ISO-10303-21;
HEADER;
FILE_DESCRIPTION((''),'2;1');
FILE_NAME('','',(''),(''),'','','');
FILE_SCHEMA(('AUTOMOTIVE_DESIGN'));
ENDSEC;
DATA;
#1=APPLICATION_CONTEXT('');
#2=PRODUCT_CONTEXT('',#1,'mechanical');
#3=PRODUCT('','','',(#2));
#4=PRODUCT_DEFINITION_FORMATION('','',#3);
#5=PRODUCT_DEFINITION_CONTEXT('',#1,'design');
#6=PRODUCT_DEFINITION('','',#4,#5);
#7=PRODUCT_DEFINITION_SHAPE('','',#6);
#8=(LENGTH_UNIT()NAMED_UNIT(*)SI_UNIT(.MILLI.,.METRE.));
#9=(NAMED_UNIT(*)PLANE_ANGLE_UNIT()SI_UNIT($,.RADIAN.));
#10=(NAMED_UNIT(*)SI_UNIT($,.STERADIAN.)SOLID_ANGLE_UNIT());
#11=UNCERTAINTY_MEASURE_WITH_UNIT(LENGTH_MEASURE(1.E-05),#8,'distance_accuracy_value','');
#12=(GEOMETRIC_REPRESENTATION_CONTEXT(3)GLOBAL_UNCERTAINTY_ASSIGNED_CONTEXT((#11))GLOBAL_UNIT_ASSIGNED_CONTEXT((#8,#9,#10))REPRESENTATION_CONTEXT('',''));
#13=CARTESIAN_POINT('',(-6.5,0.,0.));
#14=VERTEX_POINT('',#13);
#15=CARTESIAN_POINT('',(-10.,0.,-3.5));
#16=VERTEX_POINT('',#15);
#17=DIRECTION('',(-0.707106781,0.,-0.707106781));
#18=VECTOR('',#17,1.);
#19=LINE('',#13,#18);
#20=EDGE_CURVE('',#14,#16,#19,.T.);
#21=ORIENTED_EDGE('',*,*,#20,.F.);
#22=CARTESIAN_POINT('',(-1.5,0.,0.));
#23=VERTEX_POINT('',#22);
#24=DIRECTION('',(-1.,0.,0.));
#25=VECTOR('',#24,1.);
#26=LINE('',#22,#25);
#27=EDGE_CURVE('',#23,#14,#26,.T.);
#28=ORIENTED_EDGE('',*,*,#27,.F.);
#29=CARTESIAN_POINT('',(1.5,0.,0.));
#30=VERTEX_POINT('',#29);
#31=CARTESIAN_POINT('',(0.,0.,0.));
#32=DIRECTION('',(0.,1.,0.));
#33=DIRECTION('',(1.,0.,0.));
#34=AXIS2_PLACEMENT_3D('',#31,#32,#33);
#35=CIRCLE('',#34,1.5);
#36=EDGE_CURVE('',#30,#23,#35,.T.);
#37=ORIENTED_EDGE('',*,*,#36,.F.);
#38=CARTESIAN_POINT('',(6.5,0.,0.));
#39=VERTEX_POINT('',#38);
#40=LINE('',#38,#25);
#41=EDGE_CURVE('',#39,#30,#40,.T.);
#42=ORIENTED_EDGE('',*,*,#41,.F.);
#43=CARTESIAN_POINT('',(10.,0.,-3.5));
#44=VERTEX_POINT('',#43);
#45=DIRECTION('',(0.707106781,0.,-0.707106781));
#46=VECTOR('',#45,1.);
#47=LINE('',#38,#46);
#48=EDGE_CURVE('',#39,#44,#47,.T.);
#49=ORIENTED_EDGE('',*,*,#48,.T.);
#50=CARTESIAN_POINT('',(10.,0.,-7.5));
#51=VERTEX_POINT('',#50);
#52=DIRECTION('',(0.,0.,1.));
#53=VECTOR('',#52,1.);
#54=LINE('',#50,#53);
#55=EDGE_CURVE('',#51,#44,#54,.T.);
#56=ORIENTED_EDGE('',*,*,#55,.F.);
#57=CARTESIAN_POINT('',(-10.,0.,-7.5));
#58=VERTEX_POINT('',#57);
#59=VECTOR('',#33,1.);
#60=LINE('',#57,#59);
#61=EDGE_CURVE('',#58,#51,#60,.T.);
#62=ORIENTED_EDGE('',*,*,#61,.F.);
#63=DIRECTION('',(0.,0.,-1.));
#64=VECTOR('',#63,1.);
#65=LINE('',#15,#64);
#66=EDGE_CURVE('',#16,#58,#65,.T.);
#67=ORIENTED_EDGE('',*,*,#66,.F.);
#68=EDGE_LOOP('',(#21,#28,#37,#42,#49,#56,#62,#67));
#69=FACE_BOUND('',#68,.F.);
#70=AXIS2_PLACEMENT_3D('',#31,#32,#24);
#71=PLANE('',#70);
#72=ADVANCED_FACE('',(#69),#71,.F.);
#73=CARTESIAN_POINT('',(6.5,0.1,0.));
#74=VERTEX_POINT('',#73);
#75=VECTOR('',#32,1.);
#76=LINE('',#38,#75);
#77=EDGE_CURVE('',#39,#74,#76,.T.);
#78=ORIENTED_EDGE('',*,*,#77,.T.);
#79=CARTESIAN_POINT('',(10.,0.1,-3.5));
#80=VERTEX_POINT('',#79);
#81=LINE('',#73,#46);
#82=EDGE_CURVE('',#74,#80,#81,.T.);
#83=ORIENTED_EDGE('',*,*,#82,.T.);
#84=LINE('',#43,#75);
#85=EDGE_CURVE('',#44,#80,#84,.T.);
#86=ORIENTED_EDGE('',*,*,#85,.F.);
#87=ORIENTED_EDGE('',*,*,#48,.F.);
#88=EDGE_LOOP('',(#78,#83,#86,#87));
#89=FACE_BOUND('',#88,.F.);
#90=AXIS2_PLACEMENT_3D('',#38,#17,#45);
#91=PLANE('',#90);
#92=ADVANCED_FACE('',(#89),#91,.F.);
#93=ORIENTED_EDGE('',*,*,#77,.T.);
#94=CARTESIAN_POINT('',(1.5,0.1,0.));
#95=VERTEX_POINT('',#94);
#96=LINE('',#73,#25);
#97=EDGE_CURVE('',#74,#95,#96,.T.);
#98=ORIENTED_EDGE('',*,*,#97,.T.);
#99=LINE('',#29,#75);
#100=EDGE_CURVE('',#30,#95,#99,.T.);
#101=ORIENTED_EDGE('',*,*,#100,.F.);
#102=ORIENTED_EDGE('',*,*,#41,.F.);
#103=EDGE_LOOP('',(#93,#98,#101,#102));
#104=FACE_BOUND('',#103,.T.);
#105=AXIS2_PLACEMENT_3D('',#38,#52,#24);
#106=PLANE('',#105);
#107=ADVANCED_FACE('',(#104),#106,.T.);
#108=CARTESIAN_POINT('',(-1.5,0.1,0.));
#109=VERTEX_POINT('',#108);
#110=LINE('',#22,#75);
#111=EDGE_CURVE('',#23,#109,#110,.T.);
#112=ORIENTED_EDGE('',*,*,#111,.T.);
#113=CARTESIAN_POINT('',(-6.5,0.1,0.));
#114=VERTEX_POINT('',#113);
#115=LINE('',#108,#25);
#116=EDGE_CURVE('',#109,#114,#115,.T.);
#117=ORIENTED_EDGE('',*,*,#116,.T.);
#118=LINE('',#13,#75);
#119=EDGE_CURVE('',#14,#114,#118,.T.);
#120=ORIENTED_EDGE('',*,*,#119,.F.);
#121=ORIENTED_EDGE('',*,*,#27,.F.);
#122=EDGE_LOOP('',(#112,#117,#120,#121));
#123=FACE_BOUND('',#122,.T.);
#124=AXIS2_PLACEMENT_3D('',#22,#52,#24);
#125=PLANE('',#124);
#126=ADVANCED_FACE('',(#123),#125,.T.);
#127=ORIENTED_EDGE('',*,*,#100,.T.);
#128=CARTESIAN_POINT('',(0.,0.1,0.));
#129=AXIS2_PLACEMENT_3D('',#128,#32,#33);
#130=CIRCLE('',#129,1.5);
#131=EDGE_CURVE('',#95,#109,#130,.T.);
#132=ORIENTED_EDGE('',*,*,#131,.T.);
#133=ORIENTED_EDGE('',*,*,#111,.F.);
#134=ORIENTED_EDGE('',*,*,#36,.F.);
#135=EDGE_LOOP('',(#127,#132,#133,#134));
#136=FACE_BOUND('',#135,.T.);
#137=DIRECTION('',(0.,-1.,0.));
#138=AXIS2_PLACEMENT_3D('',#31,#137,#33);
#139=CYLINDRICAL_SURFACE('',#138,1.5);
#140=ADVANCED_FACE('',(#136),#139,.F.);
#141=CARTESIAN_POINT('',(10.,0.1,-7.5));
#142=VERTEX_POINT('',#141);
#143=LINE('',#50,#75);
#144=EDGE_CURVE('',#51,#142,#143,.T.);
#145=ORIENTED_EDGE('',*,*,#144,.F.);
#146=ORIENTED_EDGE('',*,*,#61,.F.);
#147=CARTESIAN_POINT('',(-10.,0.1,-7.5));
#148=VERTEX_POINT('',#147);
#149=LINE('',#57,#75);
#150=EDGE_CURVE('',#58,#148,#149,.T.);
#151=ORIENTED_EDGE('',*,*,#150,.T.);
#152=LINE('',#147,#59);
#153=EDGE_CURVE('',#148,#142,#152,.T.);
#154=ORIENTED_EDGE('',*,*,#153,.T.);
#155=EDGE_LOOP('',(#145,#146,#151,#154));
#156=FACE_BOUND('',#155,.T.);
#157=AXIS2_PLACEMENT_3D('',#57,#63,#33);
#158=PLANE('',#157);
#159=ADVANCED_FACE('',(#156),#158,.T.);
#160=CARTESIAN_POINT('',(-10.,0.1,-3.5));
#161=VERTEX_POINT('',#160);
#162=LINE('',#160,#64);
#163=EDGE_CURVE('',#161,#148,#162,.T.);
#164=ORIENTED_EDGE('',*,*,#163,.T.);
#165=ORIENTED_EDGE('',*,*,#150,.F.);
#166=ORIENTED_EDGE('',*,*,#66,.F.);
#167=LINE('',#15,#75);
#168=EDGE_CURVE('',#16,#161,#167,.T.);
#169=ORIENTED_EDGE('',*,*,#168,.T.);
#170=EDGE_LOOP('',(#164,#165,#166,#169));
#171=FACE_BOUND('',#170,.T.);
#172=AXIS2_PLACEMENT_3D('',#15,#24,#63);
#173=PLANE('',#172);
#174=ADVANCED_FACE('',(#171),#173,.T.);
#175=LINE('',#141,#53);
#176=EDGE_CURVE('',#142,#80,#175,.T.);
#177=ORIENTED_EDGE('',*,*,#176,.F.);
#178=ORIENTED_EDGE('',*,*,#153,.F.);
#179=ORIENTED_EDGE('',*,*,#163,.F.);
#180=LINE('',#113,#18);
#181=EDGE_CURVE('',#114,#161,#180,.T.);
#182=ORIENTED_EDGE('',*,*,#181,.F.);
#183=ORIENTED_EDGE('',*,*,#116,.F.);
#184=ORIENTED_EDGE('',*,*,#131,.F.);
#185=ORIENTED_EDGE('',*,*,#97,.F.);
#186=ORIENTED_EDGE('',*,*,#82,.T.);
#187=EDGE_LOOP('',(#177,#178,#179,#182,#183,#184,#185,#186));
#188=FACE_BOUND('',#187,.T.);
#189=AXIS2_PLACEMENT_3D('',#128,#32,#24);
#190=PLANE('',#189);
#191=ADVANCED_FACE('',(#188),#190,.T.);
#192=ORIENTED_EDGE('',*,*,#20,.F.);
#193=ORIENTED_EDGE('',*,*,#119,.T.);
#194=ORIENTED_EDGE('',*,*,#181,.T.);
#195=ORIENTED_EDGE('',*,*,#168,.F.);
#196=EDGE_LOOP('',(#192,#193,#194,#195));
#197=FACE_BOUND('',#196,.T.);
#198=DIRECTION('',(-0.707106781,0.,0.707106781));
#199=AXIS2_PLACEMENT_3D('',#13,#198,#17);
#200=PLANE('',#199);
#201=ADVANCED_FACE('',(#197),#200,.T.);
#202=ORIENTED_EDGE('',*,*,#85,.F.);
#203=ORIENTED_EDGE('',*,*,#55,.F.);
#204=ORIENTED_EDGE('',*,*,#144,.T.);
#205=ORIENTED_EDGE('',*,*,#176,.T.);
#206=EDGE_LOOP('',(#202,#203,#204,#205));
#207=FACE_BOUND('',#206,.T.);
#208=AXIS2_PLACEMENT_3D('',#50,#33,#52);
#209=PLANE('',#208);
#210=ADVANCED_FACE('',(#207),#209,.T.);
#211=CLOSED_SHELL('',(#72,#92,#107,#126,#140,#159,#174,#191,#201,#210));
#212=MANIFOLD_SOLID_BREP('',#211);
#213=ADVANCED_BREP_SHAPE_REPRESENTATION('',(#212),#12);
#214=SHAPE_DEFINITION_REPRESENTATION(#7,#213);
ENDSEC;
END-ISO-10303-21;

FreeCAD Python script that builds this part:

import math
import FreeCAD as App
import Part
import Sketcher
from FreeCAD import Vector
Q = App.Units.Quantity

doc = App.newDocument("Part")
body = doc.addObject("PartDesign::Body", "Body")

sketch1 = body.newObject("Sketcher::SketchObject", "Sketch")
sketch1.AttachmentSupport = (doc.getObject("XZ_Plane"), [""])
sketch1.MapMode = "FlatFace"
sketch1.addGeometry(Part.LineSegment(Vector(-6.5, 0, 0), Vector(-1.5, 0, 0)), False)
sketch1.addGeometry(Part.ArcOfCircle(Part.Circle(Vector(0, 0, 0), Vector(0, 0, 1), 1.5), math.radians(180), math.radians(360)), False)
sketch1.addGeometry(Part.LineSegment(Vector(1.5, 0, 0), Vector(6.5, 0, 0)), False)
sketch1.addGeometry(Part.LineSegment(Vector(6.5, 0, 0), Vector(10, -3.5, 0)), False)
sketch1.addGeometry(Part.LineSegment(Vector(10, -3.5, 0), Vector(10, -7.5, 0)), False)
sketch1.addGeometry(Part.LineSegment(Vector(10, -7.5, 0), Vector(-10, -7.5, 0)), False)
sketch1.addGeometry(Part.LineSegment(Vector(-10, -7.5, 0), Vector(-10, -3.5, 0)), False)
sketch1.addGeometry(Part.LineSegment(Vector(-10, -3.5, 0), Vector(-6.5, 0, 0)), False)
sketch1.addConstraint(Sketcher.Constraint("Coincident", 0, 2, 1, 1))
sketch1.addConstraint(Sketcher.Constraint("Coincident", 1, 2, 2, 1))
sketch1.addConstraint(Sketcher.Constraint("Coincident", 2, 2, 3, 1))
sketch1.addConstraint(Sketcher.Constraint("Coincident", 3, 2, 4, 1))
sketch1.addConstraint(Sketcher.Constraint("Coincident", 4, 2, 5, 1))
sketch1.addConstraint(Sketcher.Constraint("Coincident", 5, 2, 6, 1))
sketch1.addConstraint(Sketcher.Constraint("Coincident", 6, 2, 7, 1))
sketch1.addConstraint(Sketcher.Constraint("Coincident", 7, 2, 0, 1))
sketch1.addConstraint(Sketcher.Constraint("Horizontal", 0))
sketch1.addConstraint(Sketcher.Constraint("Horizontal", 2))
sketch1.addConstraint(Sketcher.Constraint("Vertical", 4))
sketch1.addConstraint(Sketcher.Constraint("Horizontal", 5))
sketch1.addConstraint(Sketcher.Constraint("Vertical", 6))
sketch1.addConstraint(Sketcher.Constraint("Coincident", 1, 3, -1, 1))
sketch1.addConstraint(Sketcher.Constraint("Symmetric", 2, 2, 7, 2, -1, 1))
sketch1.addConstraint(Sketcher.Constraint("Symmetric", 3, 2, 6, 2, -2))
sketch1.addConstraint(Sketcher.Constraint("PointOnObject", 0, 2, -1))
sketch1.addConstraint(Sketcher.Constraint("Perpendicular", 3, 7))
sketch1.addConstraint(Sketcher.Constraint("Radius", 1, Q("1.5 mm")))
sketch1.addConstraint(Sketcher.Constraint("DistanceX", 5, 2, 5, 1, Q("20 mm")))
sketch1.addConstraint(Sketcher.Constraint("DistanceY", 4, 2, 4, 1, Q("4 mm")))
sketch1.addConstraint(Sketcher.Constraint("DistanceY", 4, 2, -1, 1, Q("7.5 mm")))
pad1 = body.newObject("PartDesign::Pad", "Pad")
pad1.Profile = sketch1
pad1.Length = 0.1
pad1.Reversed = True

doc.recompute()
